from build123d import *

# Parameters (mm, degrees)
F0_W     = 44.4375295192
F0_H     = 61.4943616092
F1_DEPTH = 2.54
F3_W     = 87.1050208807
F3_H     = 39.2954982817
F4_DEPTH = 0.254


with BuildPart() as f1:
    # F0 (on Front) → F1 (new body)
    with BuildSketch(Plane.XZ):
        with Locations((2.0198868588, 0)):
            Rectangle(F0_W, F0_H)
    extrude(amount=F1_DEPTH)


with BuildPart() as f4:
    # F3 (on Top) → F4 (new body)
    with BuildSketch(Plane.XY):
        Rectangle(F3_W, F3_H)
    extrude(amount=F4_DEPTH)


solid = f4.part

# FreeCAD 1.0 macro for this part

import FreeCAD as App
import Part
import Sketcher
Q = App.Units.Quantity


def add_polygon(sketch, points):
    """Adds a closed chain of lines whose ends are joined by coincident constraints."""
    first, n = sketch.GeometryCount, len(points)
    for a, b in zip(points, points[1:] + points[:1]):
        sketch.addGeometry(Part.LineSegment(App.Vector(*a, 0), App.Vector(*b, 0)), False)
    for i in range(n):
        sketch.addConstraint(Sketcher.Constraint("Coincident", first + i, 2, first + (i + 1) % n, 1))

doc = App.newDocument("Part")
body = doc.addObject("PartDesign::Body", "Body")

# Sketch on XZ plane
sketch1 = body.newObject("Sketcher::SketchObject", "Sketch")
sketch1.AttachmentSupport = (doc.getObject("XZ_Plane"), [""])
sketch1.MapMode = "FlatFace"
add_polygon(sketch1, [(-20, 31), (-20, -31), (24, -31), (24, 31)])  # lines 0-3
sketch1.addConstraint([
    Sketcher.Constraint("Vertical", 0),
    Sketcher.Constraint("Horizontal", 1),
    Sketcher.Constraint("Vertical", 2),
    Sketcher.Constraint("Horizontal", 3),
    Sketcher.Constraint("DistanceX", 1, 1, 1, 2, 44.43753),
    Sketcher.Constraint("DistanceY", 0, 2, 0, 1, 61.494362),
    Sketcher.Constraint("DistanceY", 0, 2, -1, 1, 30.747181),
    Sketcher.Constraint("DistanceX", -1, 1, 1, 2, 24.238652),
])
pad1 = body.newObject("PartDesign::Pad", "Pad")
pad1.Profile = sketch1
pad1.Length = Q("0.1 in")
body2 = doc.addObject("PartDesign::Body", "Body001")

# Sketch on XY plane
sketch2 = body2.newObject("Sketcher::SketchObject", "Sketch001")
sketch2.AttachmentSupport = (doc.getObject("XY_Plane001"), [""])
sketch2.MapMode = "FlatFace"
add_polygon(sketch2, [(-44, 20), (-44, -20), (44, -20), (44, 20)])  # lines 0-3
sketch2.addConstraint([
    Sketcher.Constraint("Vertical", 0),
    Sketcher.Constraint("Horizontal", 1),
    Sketcher.Constraint("Vertical", 2),
    Sketcher.Constraint("Horizontal", 3),
    Sketcher.Constraint("Symmetric", 0, 2, 2, 2, -1, 1),
    Sketcher.Constraint("DistanceY", 0, 2, 0, 1, 39.295498),
    Sketcher.Constraint("DistanceX", 1, 1, 1, 2, 87.105021),
])
pad2 = body2.newObject("PartDesign::Pad", "Pad001")
pad2.Profile = sketch2
pad2.Length = Q("0.01 in")
body.Visibility = False

doc.recompute()
